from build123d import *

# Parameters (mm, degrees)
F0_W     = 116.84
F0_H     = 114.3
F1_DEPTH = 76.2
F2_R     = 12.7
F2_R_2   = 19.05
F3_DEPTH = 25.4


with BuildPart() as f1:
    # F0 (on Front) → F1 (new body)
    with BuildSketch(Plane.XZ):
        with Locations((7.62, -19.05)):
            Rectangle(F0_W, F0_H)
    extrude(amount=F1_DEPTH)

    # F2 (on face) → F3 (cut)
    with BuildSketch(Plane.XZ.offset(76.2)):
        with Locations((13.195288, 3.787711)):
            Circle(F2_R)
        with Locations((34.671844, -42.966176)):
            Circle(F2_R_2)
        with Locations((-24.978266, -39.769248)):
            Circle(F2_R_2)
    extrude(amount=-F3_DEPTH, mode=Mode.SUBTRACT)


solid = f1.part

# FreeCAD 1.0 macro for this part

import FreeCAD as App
import Part
import Sketcher
from FreeCAD import Vector
Q = App.Units.Quantity


def add_polygon(sketch, points):
    """Adds a closed chain of lines whose ends are joined by coincident constraints."""
    first, n = sketch.GeometryCount, len(points)
    for a, b in zip(points, points[1:] + points[:1]):
        sketch.addGeometry(Part.LineSegment(App.Vector(*a, 0), App.Vector(*b, 0)), False)
    for i in range(n):
        sketch.addConstraint(Sketcher.Constraint("Coincident", first + i, 2, first + (i + 1) % n, 1))

doc = App.newDocument("Part")
body = doc.addObject("PartDesign::Body", "Body")

sketch1 = body.newObject("Sketcher::SketchObject", "Sketch")
sketch1.AttachmentSupport = (doc.getObject("XZ_Plane"), [""])
sketch1.MapMode = "FlatFace"
add_polygon(sketch1, [(-50.8, 38.1), (-50.8, -76.2), (66.04, -76.2), (66.04, 38.1)])
sketch1.addConstraint([
    Sketcher.Constraint("Vertical", 0),
    Sketcher.Constraint("Horizontal", 1),
    Sketcher.Constraint("Vertical", 2),
    Sketcher.Constraint("Horizontal", 3),
    Sketcher.Constraint("DistanceX", 1, 1, 1, 2, Q("4.6 in")),
    Sketcher.Constraint("DistanceY", 0, 2, 0, 1, Q("4.5 in")),
    Sketcher.Constraint("DistanceX", 0, 2, -1, 1, Q("2 in")),
    Sketcher.Constraint("DistanceY", 0, 2, -1, 1, Q("3 in")),
])
pad1 = body.newObject("PartDesign::Pad", "Pad")
pad1.Profile = sketch1
pad1.Length = Q("3 in")

sketch2 = body.newObject("Sketcher::SketchObject", "Sketch001")
sketch2.AttachmentSupport = (doc.getObject("XZ_Plane"), [""])
sketch2.MapMode = "FlatFace"
sketch2.AttachmentOffset = App.Placement(Vector(0, 0, 3 * 25.4), App.Rotation())
sketch2.addGeometry([
    Part.Circle(Vector(13.195288, 3.787711, 0), Vector(0, 0, 1), 12.7),
    Part.Circle(Vector(34.671844, -42.966176, 0), Vector(0, 0, 1), 19.05),
    Part.Circle(Vector(-24.978266, -39.769248, 0), Vector(0, 0, 1), 19.05),
], False)
sketch2.addConstraint([
    Sketcher.Constraint("Equal", 1, 2),
    Sketcher.Constraint("Diameter", 0, Q("1 in")),
    Sketcher.Constraint("Diameter", 1, Q("1.5 in")),
    Sketcher.Constraint("DistanceY", -1, 1, 0, 3, Q("3.787711 mm")),
    Sketcher.Constraint("DistanceY", 2, 3, 0, 3, Q("43.556959 mm")),
    Sketcher.Constraint("DistanceX", 2, 3, 1, 3, Q("59.65011 mm")),
    Sketcher.Constraint("DistanceX", -1, 1, 0, 3, Q("13.195288 mm")),
    Sketcher.Constraint("DistanceX", -1, 1, 1, 3, Q("34.671844 mm")),
    Sketcher.Constraint("DistanceY", 1, 3, -1, 1, Q("42.966176 mm")),
])
pocket1 = body.newObject("PartDesign::Pocket", "Pocket")
pocket1.Profile = sketch2
pocket1.Length = Q("1 in")

doc.recompute()
